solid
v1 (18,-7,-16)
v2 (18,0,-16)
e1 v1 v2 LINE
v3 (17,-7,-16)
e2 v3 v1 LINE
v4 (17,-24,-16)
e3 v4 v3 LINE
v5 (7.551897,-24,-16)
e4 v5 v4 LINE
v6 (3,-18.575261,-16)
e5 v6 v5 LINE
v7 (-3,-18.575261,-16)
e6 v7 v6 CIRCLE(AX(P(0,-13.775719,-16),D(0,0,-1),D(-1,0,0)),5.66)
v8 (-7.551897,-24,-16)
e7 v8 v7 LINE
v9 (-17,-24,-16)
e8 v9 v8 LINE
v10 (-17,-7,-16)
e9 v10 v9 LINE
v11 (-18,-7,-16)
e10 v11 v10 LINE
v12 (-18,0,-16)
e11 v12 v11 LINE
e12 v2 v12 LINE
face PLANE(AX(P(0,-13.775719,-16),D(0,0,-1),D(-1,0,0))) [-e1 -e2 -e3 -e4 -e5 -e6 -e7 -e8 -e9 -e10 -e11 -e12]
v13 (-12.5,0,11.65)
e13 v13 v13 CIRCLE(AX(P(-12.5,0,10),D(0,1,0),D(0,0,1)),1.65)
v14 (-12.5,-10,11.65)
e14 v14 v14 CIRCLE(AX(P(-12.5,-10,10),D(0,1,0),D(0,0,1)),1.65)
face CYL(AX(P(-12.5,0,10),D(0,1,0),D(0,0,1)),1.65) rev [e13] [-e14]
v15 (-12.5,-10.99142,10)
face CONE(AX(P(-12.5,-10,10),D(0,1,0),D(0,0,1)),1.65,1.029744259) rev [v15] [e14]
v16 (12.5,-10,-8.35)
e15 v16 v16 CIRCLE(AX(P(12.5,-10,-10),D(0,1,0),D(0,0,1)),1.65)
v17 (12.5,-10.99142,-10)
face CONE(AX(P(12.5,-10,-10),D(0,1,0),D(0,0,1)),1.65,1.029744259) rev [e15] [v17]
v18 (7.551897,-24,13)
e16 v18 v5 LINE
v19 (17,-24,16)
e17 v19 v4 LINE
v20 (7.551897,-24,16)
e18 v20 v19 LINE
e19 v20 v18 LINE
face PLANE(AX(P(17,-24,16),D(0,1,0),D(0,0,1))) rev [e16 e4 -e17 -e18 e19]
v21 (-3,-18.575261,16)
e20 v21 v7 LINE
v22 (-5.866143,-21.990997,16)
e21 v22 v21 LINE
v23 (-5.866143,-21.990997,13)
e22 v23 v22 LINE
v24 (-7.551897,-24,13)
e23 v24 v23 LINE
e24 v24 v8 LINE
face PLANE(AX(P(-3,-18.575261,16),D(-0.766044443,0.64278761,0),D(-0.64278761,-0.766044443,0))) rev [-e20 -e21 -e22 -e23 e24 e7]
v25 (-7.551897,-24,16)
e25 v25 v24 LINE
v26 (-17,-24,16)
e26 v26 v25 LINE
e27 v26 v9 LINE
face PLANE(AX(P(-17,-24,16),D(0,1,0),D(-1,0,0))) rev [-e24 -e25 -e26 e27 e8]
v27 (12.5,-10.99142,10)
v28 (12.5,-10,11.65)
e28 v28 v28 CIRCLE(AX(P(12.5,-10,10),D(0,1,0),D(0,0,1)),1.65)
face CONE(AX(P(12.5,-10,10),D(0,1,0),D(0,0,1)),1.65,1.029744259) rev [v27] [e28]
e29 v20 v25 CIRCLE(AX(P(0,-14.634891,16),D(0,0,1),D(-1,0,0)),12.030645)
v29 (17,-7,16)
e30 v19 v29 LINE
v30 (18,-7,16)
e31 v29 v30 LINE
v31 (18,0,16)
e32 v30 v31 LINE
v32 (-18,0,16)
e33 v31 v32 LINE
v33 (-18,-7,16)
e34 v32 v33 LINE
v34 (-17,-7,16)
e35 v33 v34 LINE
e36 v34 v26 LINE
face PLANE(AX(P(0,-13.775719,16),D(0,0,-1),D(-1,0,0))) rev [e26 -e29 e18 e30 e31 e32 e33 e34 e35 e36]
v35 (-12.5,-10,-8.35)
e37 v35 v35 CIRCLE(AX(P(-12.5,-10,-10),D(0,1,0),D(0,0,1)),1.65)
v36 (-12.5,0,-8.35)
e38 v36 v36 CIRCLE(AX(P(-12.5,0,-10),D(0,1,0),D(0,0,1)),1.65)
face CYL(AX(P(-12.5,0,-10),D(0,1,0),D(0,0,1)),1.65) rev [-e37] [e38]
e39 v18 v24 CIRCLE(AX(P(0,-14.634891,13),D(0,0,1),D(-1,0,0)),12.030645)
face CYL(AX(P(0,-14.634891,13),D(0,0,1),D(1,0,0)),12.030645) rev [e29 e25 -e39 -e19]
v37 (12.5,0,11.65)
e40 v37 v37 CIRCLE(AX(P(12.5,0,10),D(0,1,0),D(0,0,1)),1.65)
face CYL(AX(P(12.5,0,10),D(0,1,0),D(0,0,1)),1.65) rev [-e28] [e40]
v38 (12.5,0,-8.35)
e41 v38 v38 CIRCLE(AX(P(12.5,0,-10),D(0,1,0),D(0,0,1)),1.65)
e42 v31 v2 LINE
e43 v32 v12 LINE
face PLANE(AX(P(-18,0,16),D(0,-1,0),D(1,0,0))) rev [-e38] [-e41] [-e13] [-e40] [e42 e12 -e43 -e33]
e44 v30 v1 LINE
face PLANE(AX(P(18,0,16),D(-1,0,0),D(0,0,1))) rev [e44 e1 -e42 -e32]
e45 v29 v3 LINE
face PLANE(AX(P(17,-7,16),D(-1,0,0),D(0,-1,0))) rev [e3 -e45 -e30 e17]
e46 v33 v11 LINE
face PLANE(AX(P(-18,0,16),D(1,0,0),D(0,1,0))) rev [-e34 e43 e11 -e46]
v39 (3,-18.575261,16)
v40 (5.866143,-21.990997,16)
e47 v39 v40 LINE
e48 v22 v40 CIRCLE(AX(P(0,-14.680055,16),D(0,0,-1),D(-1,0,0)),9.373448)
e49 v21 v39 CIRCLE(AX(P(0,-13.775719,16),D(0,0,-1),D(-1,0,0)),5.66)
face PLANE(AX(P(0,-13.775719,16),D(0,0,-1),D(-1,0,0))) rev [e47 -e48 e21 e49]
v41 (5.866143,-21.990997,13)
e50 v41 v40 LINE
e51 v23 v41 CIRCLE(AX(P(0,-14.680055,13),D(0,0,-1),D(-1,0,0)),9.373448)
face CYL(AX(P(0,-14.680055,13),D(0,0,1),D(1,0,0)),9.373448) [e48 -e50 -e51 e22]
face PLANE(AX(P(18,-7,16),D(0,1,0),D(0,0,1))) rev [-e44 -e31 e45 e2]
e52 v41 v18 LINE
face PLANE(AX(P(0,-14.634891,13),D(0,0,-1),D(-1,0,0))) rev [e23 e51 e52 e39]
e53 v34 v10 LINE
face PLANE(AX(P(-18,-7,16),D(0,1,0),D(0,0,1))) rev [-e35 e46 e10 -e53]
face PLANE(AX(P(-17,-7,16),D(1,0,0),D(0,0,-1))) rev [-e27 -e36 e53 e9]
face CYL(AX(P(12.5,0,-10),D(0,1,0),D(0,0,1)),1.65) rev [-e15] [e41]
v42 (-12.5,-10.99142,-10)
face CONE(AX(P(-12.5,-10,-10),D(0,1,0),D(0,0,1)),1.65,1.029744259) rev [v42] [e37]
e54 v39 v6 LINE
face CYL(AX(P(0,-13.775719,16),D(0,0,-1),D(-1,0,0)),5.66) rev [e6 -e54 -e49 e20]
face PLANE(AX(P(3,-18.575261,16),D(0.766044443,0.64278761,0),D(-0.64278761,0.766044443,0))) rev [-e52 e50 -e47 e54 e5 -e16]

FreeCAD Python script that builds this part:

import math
import FreeCAD as App
import Part
import Sketcher
from FreeCAD import Vector
Q = App.Units.Quantity


def add_polygon(sketch, points):
    """Adds a closed chain of lines whose ends are joined by coincident constraints."""
    first, n = sketch.GeometryCount, len(points)
    for a, b in zip(points, points[1:] + points[:1]):
        sketch.addGeometry(Part.LineSegment(App.Vector(*a, 0), App.Vector(*b, 0)), False)
    for i in range(n):
        sketch.addConstraint(Sketcher.Constraint("Coincident", first + i, 2, first + (i + 1) % n, 1))

doc = App.newDocument("Part")
params = doc.addObject("Spreadsheet::Sheet", "Params")
for row, (alias, value) in enumerate([
    ("sketch1_width", "36 mm"),
    ("sketch1_width2", "1 mm"),
    ("sketch1_height", "7 mm"),
    ("sketch1_height2", "17 mm"),
    ("sketch1_radius", "5.66 mm"),
    ("pad1_length", "32 mm"),
    ("pocket1_length", "3 mm"),
    ("sketch3_width", "10 mm"),
    ("sketch3_height", "1.65 mm"),
    ("groove_angle", "360 deg"),
    ("sketch4_width", "10 mm"),
    ("sketch4_height", "1.65 mm"),
    ("groove2_angle", "360 deg"),
], start=1):
    params.set(f"A{row}", alias)
    params.set(f"B{row}", "=" + value)
    params.setAlias(f"B{row}", alias)

body = doc.addObject("PartDesign::Body", "Body")

sketch1 = body.newObject("Sketcher::SketchObject", "Sketch")
sketch1.AttachmentSupport = (doc.getObject("XY_Plane"), [""])
sketch1.MapMode = "FlatFace"
sketch1.addGeometry([
    Part.LineSegment(Vector(18, 0, 0), Vector(-18, 0, 0)),
    Part.LineSegment(Vector(-18, 0, 0), Vector(-18, -7, 0)),
    Part.LineSegment(Vector(-18, -7, 0), Vector(-17, -7, 0)),
    Part.LineSegment(Vector(-17, -7, 0), Vector(-17, -24, 0)),
    Part.LineSegment(Vector(-17, -24, 0), Vector(-7.6, -24, 0)),
    Part.LineSegment(Vector(-7.6, -24, 0), Vector(-3, -18.6, 0)),
    Part.ArcOfCircle(Part.Circle(Vector(0, -13.8, 0), Vector(0, 0, 1), 5.7), math.radians(-58), math.radians(238)),
    Part.LineSegment(Vector(3, -18.6, 0), Vector(7.6, -24, 0)),
    Part.LineSegment(Vector(7.6, -24, 0), Vector(17, -24, 0)),
    Part.LineSegment(Vector(17, -24, 0), Vector(17, -7, 0)),
    Part.LineSegment(Vector(17, -7, 0), Vector(18, -7, 0)),
    Part.LineSegment(Vector(18, -7, 0), Vector(18, 0, 0)),
], False)
sketch1.addConstraint([
    Sketcher.Constraint("Coincident", 0, 2, 1, 1),
    Sketcher.Constraint("Coincident", 1, 2, 2, 1),
    Sketcher.Constraint("Coincident", 2, 2, 3, 1),
    Sketcher.Constraint("Coincident", 3, 2, 4, 1),
    Sketcher.Constraint("Coincident", 4, 2, 5, 1),
    Sketcher.Constraint("Coincident", 5, 2, 6, 2),
    Sketcher.Constraint("Coincident", 6, 1, 7, 1),
    Sketcher.Constraint("Coincident", 7, 2, 8, 1),
    Sketcher.Constraint("Coincident", 8, 2, 9, 1),
    Sketcher.Constraint("Coincident", 9, 2, 10, 1),
    Sketcher.Constraint("Coincident", 10, 2, 11, 1),
    Sketcher.Constraint("Coincident", 11, 2, 0, 1),
    Sketcher.Constraint("Horizontal", 0),
    Sketcher.Constraint("Vertical", 1),
    Sketcher.Constraint("Horizontal", 2),
    Sketcher.Constraint("Vertical", 3),
    Sketcher.Constraint("Horizontal", 4),
    Sketcher.Constraint("Horizontal", 8),
    Sketcher.Constraint("Vertical", 9),
    Sketcher.Constraint("Horizontal", 10),
    Sketcher.Constraint("Vertical", 11),
    Sketcher.Constraint("Symmetric", 0, 2, 11, 2, -1, 1),
    Sketcher.Constraint("Symmetric", 5, 2, 6, 1, -2),
    Sketcher.Constraint("Symmetric", 4, 2, 7, 2, -2),
    Sketcher.Constraint("Symmetric", 2, 2, 9, 2, -2),
    Sketcher.Constraint("DistanceX", 0, 2, 0, 1, Q("36 mm")),
    Sketcher.Constraint("DistanceX", 2, 1, 2, 2, Q("1 mm")),
    Sketcher.Constraint("DistanceY", 1, 2, 1, 1, Q("7 mm")),
    Sketcher.Constraint("DistanceY", 3, 2, 3, 1, Q("17 mm")),
    Sketcher.Constraint("Angle", 5, Q("50 deg")),
    Sketcher.Constraint("Radius", 6, Q("5.66 mm")),
    Sketcher.Constraint("DistanceX", 5, 2, -1, 1, Q("3 mm")),
    Sketcher.Constraint("DistanceX", 4, 1, 4, 2, Q("9.448103 mm")),
])
sketch1.setExpression("Constraints[25]", "Params.sketch1_width")
sketch1.setExpression("Constraints[26]", "Params.sketch1_width2")
sketch1.setExpression("Constraints[27]", "Params.sketch1_height")
sketch1.setExpression("Constraints[28]", "Params.sketch1_height2")
sketch1.setExpression("Constraints[30]", "Params.sketch1_radius")
pad1 = body.newObject("PartDesign::Pad", "Pad")
pad1.Profile = sketch1
pad1.setExpression("Length", "Params.pad1_length")
pad1.Midplane = True

sketch2 = body.newObject("Sketcher::SketchObject", "Sketch001")
sketch2.AttachmentSupport = (doc.getObject("XY_Plane"), [""])
sketch2.MapMode = "FlatFace"
sketch2.AttachmentOffset = App.Placement(Vector(0, 0, 16), App.Rotation())
sketch2.addGeometry([
    Part.LineSegment(Vector(-7.6, -24, 0), Vector(-5.9, -22, 0)),
    Part.ArcOfCircle(Part.Circle(Vector(0, -14.7, 0), Vector(0, 0, 1), 9.4), math.radians(-51), math.radians(231)),
    Part.LineSegment(Vector(5.9, -22, 0), Vector(7.6, -24, 0)),
    Part.ArcOfCircle(Part.Circle(Vector(0, -14.6, 0), Vector(0, 0, 1), 12), math.radians(-51), math.radians(231)),
], False)
sketch2.addConstraint([
    Sketcher.Constraint("Coincident", 0, 2, 1, 2),
    Sketcher.Constraint("Coincident", 1, 1, 2, 1),
    Sketcher.Constraint("Coincident", 2, 2, 3, 1),
    Sketcher.Constraint("Coincident", 3, 2, 0, 1),
    Sketcher.Constraint("Symmetric", 0, 2, 1, 1, -2),
    Sketcher.Constraint("Symmetric", 2, 2, 3, 2, -2),
    Sketcher.Constraint("Angle", 0, Q("50 deg")),
    Sketcher.Constraint("DistanceY", 2, 2, -1, 1, Q("24 mm")),
    Sketcher.Constraint("Radius", 1, Q("9.373448 mm")),
    Sketcher.Constraint("Radius", 3, Q("12.030645 mm")),
    Sketcher.Constraint("DistanceY", 3, 3, -1, 1, Q("14.634891 mm")),
    Sketcher.Constraint("DistanceX", 0, 2, 2, 2, Q("13.41804 mm")),
])
pocket1 = body.newObject("PartDesign::Pocket", "Pocket")
pocket1.Profile = sketch2
pocket1.setExpression("Length", "Params.pocket1_length")

sketch3 = body.newObject("Sketcher::SketchObject", "Sketch002")
sketch3.AttachmentSupport = (doc.getObject("YZ_Plane"), [""])
sketch3.MapMode = "FlatFace"
sketch3.AttachmentOffset = App.Placement(Vector(0, 0, -12.5), App.Rotation())
add_polygon(sketch3, [(-11, 10), (0, 10), (0, 11.7), (-10, 11.7)])
sketch3.addGeometry(Part.LineSegment(Vector(0, 10, 0), Vector(-11, 10, 0)), True)
sketch3.addConstraint([
    Sketcher.Constraint("Horizontal", 0),
    Sketcher.Constraint("Vertical", 1),
    Sketcher.Constraint("Horizontal", 2),
    Sketcher.Constraint("Horizontal", 4),
    Sketcher.Constraint("Coincident", 4, 1, 0, 2),
    Sketcher.Constraint("PointOnObject", 0, 2, -2),
    Sketcher.Constraint("Equal", 0, 4),
    Sketcher.Constraint("DistanceX", 2, 2, 2, 1, Q("10 mm")),
    Sketcher.Constraint("Angle", 3, Q("-121 deg")),
    Sketcher.Constraint("DistanceY", -1, 1, 0, 2, Q("10 mm")),
    Sketcher.Constraint("DistanceY", 1, 1, 1, 2, Q("1.65 mm")),
])
sketch3.setExpression("Constraints[11]", "Params.sketch3_width")
sketch3.setExpression("Constraints[14]", "Params.sketch3_height")
groove = body.newObject("PartDesign::Groove", "Groove")
groove.Profile = sketch3
groove.ReferenceAxis = (sketch3, ["Axis0"])
groove.setExpression("Angle", "Params.groove_angle")
doc.recompute()

mirrored = body.newObject("PartDesign::Mirrored", "Mirrored")
mirrored.Originals = [groove]
mirrored.MirrorPlane = (doc.getObject("XY_Plane"), [""])
body.Tip = mirrored
doc.recompute()

mirrored2 = body.newObject("PartDesign::Mirrored", "Mirrored001")
mirrored2.Originals = [groove]
mirrored2.MirrorPlane = (doc.getObject("YZ_Plane"), [""])
body.Tip = mirrored2

sketch4 = body.newObject("Sketcher::SketchObject", "Sketch003")
sketch4.AttachmentSupport = (doc.getObject("YZ_Plane"), [""])
sketch4.MapMode = "FlatFace"
sketch4.AttachmentOffset = App.Placement(Vector(0, 0, 12.5), App.Rotation())
add_polygon(sketch4, [(-11, -10), (0, -10), (0, -11.7), (-10, -11.7)])
sketch4.addGeometry(Part.LineSegment(Vector(0, -10, 0), Vector(-11, -10, 0)), True)
sketch4.addConstraint([
    Sketcher.Constraint("Horizontal", 0),
    Sketcher.Constraint("Vertical", 1),
    Sketcher.Constraint("Horizontal", 2),
    Sketcher.Constraint("Horizontal", 4),
    Sketcher.Constraint("Coincident", 4, 1, 0, 2),
    Sketcher.Constraint("PointOnObject", 0, 2, -2),
    Sketcher.Constraint("Equal", 0, 4),
    Sketcher.Constraint("DistanceX", 2, 2, 2, 1, Q("10 mm")),
    Sketcher.Constraint("Angle", 3, Q("121 deg")),
    Sketcher.Constraint("DistanceY", 0, 2, -1, 1, Q("10 mm")),
    Sketcher.Constraint("DistanceY", 1, 2, 1, 1, Q("1.65 mm")),
])
sketch4.setExpression("Constraints[11]", "Params.sketch4_width")
sketch4.setExpression("Constraints[14]", "Params.sketch4_height")
groove2 = body.newObject("PartDesign::Groove", "Groove001")
groove2.Profile = sketch4
groove2.ReferenceAxis = (sketch4, ["Axis0"])
groove2.setExpression("Angle", "Params.groove2_angle")

doc.recompute()
